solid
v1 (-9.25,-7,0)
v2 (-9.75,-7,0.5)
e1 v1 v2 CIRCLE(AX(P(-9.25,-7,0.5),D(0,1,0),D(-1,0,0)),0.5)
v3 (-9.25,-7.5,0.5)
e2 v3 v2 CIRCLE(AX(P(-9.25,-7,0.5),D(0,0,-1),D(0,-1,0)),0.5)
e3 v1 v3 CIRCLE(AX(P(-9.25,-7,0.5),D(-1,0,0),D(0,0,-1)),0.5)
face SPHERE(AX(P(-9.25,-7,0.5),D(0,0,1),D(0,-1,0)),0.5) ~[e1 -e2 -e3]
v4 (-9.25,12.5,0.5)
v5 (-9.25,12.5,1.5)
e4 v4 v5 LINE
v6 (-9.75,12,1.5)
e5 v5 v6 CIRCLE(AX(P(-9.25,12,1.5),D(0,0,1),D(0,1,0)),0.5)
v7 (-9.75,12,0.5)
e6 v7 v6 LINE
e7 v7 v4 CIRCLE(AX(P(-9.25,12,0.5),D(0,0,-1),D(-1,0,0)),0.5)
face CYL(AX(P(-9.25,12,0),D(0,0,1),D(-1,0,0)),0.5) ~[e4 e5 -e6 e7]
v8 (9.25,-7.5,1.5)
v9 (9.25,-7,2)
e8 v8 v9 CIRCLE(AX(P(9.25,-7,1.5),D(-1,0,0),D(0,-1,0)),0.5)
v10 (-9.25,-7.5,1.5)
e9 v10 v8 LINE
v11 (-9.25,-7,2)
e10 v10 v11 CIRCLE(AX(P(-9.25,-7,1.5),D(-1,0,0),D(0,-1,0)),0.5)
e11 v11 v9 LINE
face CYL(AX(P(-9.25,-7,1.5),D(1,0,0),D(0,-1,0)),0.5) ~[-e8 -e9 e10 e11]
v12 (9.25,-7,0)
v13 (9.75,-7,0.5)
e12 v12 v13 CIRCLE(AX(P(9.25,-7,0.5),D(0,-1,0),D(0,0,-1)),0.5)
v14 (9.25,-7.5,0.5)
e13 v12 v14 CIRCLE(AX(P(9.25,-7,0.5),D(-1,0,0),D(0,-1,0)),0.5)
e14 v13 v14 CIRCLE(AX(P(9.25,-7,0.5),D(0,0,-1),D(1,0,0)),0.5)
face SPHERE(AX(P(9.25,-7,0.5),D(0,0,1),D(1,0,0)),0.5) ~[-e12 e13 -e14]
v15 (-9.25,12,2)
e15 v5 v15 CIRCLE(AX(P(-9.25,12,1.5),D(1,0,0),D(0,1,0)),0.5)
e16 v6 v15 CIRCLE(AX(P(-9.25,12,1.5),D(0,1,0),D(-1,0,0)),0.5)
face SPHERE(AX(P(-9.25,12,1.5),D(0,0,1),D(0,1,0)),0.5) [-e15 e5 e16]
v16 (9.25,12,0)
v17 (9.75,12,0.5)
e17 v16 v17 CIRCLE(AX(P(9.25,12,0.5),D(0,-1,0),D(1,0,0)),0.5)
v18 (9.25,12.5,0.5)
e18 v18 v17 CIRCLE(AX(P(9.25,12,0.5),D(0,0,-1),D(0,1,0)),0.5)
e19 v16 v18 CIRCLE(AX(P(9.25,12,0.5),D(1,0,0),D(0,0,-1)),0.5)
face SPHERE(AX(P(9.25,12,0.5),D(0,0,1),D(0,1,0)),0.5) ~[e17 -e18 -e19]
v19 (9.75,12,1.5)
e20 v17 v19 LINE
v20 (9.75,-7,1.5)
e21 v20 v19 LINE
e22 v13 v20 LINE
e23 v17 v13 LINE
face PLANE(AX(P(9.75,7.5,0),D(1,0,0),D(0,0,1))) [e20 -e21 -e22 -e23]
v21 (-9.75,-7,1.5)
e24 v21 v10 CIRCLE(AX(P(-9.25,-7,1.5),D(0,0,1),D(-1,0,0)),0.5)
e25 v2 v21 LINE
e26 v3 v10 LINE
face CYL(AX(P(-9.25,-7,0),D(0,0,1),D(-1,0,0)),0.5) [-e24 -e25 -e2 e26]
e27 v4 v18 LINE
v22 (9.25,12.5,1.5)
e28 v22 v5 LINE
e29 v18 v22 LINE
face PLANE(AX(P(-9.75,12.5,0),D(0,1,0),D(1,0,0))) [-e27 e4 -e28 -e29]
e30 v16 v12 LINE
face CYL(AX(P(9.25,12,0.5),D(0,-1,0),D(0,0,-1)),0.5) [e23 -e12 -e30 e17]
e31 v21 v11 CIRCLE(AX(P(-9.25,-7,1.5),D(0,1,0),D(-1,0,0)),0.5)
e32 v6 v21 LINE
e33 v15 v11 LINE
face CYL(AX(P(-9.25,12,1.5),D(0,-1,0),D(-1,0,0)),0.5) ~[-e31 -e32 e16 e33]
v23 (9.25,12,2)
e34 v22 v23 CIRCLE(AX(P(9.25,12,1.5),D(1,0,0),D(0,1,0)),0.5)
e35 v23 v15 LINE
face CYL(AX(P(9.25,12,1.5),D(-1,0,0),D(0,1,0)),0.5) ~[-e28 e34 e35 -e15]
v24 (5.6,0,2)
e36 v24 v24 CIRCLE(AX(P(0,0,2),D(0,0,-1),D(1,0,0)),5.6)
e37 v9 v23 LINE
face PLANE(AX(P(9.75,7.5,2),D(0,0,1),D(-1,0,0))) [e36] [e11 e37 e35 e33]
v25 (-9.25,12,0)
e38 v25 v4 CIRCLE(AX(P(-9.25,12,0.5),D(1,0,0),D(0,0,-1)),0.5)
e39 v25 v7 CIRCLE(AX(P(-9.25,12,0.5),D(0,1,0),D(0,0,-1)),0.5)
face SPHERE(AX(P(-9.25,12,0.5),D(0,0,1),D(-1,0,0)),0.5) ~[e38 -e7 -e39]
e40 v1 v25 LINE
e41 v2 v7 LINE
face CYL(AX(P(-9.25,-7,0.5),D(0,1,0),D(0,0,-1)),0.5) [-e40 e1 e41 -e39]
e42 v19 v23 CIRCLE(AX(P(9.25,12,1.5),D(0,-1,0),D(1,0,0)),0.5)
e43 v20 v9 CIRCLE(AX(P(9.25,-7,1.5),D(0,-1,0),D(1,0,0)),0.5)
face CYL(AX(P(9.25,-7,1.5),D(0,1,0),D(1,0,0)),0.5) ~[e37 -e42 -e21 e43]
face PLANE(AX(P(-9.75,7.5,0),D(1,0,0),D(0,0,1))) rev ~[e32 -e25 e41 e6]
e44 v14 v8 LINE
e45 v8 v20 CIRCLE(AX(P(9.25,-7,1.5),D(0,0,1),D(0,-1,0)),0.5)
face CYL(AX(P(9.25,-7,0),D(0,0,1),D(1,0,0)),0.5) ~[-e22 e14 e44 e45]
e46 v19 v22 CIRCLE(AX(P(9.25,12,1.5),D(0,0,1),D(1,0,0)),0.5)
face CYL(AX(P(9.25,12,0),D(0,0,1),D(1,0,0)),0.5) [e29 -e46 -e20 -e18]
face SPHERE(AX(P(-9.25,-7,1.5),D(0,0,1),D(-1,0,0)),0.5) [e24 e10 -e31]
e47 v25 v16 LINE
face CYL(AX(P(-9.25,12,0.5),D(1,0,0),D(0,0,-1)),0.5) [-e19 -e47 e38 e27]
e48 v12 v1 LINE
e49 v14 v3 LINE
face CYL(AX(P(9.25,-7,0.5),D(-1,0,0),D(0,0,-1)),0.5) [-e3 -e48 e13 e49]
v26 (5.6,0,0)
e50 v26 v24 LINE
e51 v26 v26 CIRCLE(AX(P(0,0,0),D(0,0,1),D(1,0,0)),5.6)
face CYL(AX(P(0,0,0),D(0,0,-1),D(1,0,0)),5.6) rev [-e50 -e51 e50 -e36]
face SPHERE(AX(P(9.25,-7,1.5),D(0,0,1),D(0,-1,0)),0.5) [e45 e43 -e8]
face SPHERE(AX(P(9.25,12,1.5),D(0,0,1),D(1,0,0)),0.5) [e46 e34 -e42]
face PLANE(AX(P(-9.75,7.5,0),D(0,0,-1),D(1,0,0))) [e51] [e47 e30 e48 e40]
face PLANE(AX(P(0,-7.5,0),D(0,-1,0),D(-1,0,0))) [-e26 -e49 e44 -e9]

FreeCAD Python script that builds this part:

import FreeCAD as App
import Part
import Sketcher
from FreeCAD import Vector
Q = App.Units.Quantity


def edges_at(feature, points):
    """Names of the edges that pass closest to the given points."""
    edges = feature.Shape.Edges
    near = lambda p: min(range(len(edges)), key=lambda i: edges[i].distToShape(Part.Vertex(*p))[0])
    return sorted({f"Edge{near(p) + 1}" for p in points})

doc = App.newDocument("Part")
body = doc.addObject("PartDesign::Body", "Body")

# Sketch on XY plane
sketch1 = body.newObject("Sketcher::SketchObject", "Sketch")
sketch1.AttachmentSupport = (doc.getObject("XY_Plane"), [""])
sketch1.MapMode = "FlatFace"
sketch1.addGeometry([
    Part.LineSegment(Vector(-10, -8, 0), Vector(10, -8, 0)),  # 0
    Part.LineSegment(Vector(10, -8, 0), Vector(10, 8, 0)),  # 1
    Part.LineSegment(Vector(10, 8, 0), Vector(-10, 8, 0)),  # 2
    Part.LineSegment(Vector(-10, 8, 0), Vector(-10, -8, 0)),  # 3
    Part.Circle(Vector(0, 0, 0), Vector(0, 0, 1), 6),  # 4
], False)
sketch1.addConstraint([
    Sketcher.Constraint("Coincident", 0, 2, 1, 1),
    Sketcher.Constraint("Coincident", 1, 2, 2, 1),
    Sketcher.Constraint("Coincident", 2, 2, 3, 1),
    Sketcher.Constraint("Coincident", 3, 2, 0, 1),
    Sketcher.Constraint("Horizontal", 0),
    Sketcher.Constraint("Vertical", 1),
    Sketcher.Constraint("Horizontal", 2),
    Sketcher.Constraint("Vertical", 3),
    Sketcher.Constraint("Coincident", 4, 3, -1, 1),
    Sketcher.Constraint("Symmetric", 0, 2, 2, 2, -1, 1),
    Sketcher.Constraint("Diameter", 4, Q("11.2 mm")),
    Sketcher.Constraint("DistanceY", 0, 2, -1, 1, Q("7.5 mm")),
    Sketcher.Constraint("DistanceX", 0, 1, 0, 2, Q("19.5 mm")),
])
pad1 = body.newObject("PartDesign::Pad", "Pad")
pad1.Profile = sketch1
pad1.Length = 2

# Sketch on XZ plane
sketch2 = body.newObject("Sketcher::SketchObject", "Sketch001")
sketch2.AttachmentSupport = (doc.getObject("XZ_Plane"), [""])
sketch2.MapMode = "FlatFace"
sketch2.AttachmentOffset = App.Placement(Vector(0, 0, -7.5), App.Rotation())
sketch2.addGeometry([
    Part.LineSegment(Vector(9.8, 0, 0), Vector(-9.8, 0, 0)),
    Part.LineSegment(Vector(-9.8, 0, 0), Vector(-9.8, 2, 0)),
    Part.LineSegment(Vector(-9.8, 2, 0), Vector(9.8, 2, 0)),
    Part.LineSegment(Vector(9.8, 2, 0), Vector(9.8, 0, 0)),
], False)
sketch2.addConstraint([
    Sketcher.Constraint("Coincident", 0, 2, 1, 1),
    Sketcher.Constraint("Coincident", 1, 2, 2, 1),
    Sketcher.Constraint("Coincident", 2, 2, 3, 1),
    Sketcher.Constraint("Coincident", 3, 2, 0, 1),
    Sketcher.Constraint("Horizontal", 0),
    Sketcher.Constraint("Vertical", 1),
    Sketcher.Constraint("Horizontal", 2),
    Sketcher.Constraint("Vertical", 3),
    Sketcher.Constraint("Symmetric", 0, 2, 3, 2, -1, 1),
    Sketcher.Constraint("DistanceY", 1, 1, 1, 2, Q("2 mm")),
    Sketcher.Constraint("DistanceX", 0, 2, 0, 1, Q("19.5 mm")),
])
pad2 = body.newObject("PartDesign::Pad", "Pad001")
pad2.Profile = sketch2
pad2.Length = 5
pad2.Reversed = True
doc.recompute()

fillet = body.newObject("PartDesign::Fillet", "Fillet")
fillet.Base = (pad2, edges_at(pad2, [
    (-9.75, 12.5, 1),
    (9.75, 12.5, 1),
    (-9.75, -7.5, 1),
    (9.75, -7.5, 1),
]))
fillet.Radius = 0.5
doc.recompute()

fillet2 = body.newObject("PartDesign::Fillet", "Fillet001")
fillet2.Base = (fillet, edges_at(fillet, [
    (0, 12.5, 0),
    (9.75, 2.5, 0),
    (9.604, -7.354, 0),
    (0, -7.5, 0),
    (-9.604, -7.354, 0),
    (-9.75, 2.5, 0),
    (0, 12.5, 2),
    (9.75, 2.5, 2),
    (9.604, -7.354, 2),
    (0, -7.5, 2),
    (-9.604, -7.354, 2),
    (-9.75, 2.5, 2),
]))
fillet2.Radius = 0.5

doc.recompute()
